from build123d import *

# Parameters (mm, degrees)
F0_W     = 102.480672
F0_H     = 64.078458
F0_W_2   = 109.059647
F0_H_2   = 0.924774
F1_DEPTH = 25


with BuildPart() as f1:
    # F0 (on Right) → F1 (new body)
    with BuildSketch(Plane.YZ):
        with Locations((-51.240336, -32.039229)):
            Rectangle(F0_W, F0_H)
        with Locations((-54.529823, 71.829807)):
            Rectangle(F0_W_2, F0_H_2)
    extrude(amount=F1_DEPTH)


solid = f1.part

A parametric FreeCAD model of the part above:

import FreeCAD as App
import Part
import Sketcher

V = App.Vector
Q = App.Units.Quantity

doc = App.newDocument("Part")
body = doc.addObject("PartDesign::Body", "Body")
body.AllowCompound = True

sketch1 = body.newObject("Sketcher::SketchObject", "Sketch")
sketch1.AttachmentSupport = (doc.getObject("YZ_Plane"), [""])
sketch1.MapMode = "FlatFace"
sketch1.addGeometry([
    Part.LineSegment(V(-102.5, 0, 0), V(-102.5, -64.1, 0)),
    Part.LineSegment(V(-102.5, -64.1, 0), V(0, -64.1, 0)),
    Part.LineSegment(V(0, -64.1, 0), V(0, 0, 0)),
    Part.LineSegment(V(0, 0, 0), V(-102.5, 0, 0)),
    Part.LineSegment(V(-109.1, 72.3, 0), V(-109.1, 71.4, 0)),
    Part.LineSegment(V(-109.1, 71.4, 0), V(0, 71.4, 0)),
    Part.LineSegment(V(0, 71.4, 0), V(0, 72.3, 0)),
    Part.LineSegment(V(0, 72.3, 0), V(-109.1, 72.3, 0)),
], False)
sketch1.addConstraint([
    Sketcher.Constraint("Coincident", 0, 2, 1, 1),
    Sketcher.Constraint("Coincident", 1, 2, 2, 1),
    Sketcher.Constraint("Coincident", 2, 2, 3, 1),
    Sketcher.Constraint("Coincident", 3, 2, 0, 1),
    Sketcher.Constraint("Coincident", 4, 2, 5, 1),
    Sketcher.Constraint("Coincident", 5, 2, 6, 1),
    Sketcher.Constraint("Coincident", 6, 2, 7, 1),
    Sketcher.Constraint("Coincident", 7, 2, 4, 1),
    Sketcher.Constraint("Vertical", 0),
    Sketcher.Constraint("Horizontal", 1),
    Sketcher.Constraint("Vertical", 2),
    Sketcher.Constraint("Horizontal", 3),
    Sketcher.Constraint("Vertical", 4),
    Sketcher.Constraint("Horizontal", 5),
    Sketcher.Constraint("Vertical", 6),
    Sketcher.Constraint("Horizontal", 7),
    Sketcher.Constraint("Coincident", 2, 2, -1, 1),
    Sketcher.Constraint("PointOnObject", 5, 2, -2),
    Sketcher.Constraint("DistanceX", 1, 1, 1, 2, Q("102.480672 mm")),
    Sketcher.Constraint("DistanceX", 5, 1, 5, 2, Q("109.059647 mm")),
    Sketcher.Constraint("DistanceY", 0, 2, 0, 1, Q("64.078458 mm")),
    Sketcher.Constraint("DistanceY", 4, 2, 4, 1, Q("0.924774 mm")),
    Sketcher.Constraint("DistanceY", -1, 1, 4, 2, Q("71.36742 mm")),
])
pad1 = body.newObject("PartDesign::Pad", "Pad")
pad1.Profile = sketch1
pad1.Length = 25

doc.recompute()
